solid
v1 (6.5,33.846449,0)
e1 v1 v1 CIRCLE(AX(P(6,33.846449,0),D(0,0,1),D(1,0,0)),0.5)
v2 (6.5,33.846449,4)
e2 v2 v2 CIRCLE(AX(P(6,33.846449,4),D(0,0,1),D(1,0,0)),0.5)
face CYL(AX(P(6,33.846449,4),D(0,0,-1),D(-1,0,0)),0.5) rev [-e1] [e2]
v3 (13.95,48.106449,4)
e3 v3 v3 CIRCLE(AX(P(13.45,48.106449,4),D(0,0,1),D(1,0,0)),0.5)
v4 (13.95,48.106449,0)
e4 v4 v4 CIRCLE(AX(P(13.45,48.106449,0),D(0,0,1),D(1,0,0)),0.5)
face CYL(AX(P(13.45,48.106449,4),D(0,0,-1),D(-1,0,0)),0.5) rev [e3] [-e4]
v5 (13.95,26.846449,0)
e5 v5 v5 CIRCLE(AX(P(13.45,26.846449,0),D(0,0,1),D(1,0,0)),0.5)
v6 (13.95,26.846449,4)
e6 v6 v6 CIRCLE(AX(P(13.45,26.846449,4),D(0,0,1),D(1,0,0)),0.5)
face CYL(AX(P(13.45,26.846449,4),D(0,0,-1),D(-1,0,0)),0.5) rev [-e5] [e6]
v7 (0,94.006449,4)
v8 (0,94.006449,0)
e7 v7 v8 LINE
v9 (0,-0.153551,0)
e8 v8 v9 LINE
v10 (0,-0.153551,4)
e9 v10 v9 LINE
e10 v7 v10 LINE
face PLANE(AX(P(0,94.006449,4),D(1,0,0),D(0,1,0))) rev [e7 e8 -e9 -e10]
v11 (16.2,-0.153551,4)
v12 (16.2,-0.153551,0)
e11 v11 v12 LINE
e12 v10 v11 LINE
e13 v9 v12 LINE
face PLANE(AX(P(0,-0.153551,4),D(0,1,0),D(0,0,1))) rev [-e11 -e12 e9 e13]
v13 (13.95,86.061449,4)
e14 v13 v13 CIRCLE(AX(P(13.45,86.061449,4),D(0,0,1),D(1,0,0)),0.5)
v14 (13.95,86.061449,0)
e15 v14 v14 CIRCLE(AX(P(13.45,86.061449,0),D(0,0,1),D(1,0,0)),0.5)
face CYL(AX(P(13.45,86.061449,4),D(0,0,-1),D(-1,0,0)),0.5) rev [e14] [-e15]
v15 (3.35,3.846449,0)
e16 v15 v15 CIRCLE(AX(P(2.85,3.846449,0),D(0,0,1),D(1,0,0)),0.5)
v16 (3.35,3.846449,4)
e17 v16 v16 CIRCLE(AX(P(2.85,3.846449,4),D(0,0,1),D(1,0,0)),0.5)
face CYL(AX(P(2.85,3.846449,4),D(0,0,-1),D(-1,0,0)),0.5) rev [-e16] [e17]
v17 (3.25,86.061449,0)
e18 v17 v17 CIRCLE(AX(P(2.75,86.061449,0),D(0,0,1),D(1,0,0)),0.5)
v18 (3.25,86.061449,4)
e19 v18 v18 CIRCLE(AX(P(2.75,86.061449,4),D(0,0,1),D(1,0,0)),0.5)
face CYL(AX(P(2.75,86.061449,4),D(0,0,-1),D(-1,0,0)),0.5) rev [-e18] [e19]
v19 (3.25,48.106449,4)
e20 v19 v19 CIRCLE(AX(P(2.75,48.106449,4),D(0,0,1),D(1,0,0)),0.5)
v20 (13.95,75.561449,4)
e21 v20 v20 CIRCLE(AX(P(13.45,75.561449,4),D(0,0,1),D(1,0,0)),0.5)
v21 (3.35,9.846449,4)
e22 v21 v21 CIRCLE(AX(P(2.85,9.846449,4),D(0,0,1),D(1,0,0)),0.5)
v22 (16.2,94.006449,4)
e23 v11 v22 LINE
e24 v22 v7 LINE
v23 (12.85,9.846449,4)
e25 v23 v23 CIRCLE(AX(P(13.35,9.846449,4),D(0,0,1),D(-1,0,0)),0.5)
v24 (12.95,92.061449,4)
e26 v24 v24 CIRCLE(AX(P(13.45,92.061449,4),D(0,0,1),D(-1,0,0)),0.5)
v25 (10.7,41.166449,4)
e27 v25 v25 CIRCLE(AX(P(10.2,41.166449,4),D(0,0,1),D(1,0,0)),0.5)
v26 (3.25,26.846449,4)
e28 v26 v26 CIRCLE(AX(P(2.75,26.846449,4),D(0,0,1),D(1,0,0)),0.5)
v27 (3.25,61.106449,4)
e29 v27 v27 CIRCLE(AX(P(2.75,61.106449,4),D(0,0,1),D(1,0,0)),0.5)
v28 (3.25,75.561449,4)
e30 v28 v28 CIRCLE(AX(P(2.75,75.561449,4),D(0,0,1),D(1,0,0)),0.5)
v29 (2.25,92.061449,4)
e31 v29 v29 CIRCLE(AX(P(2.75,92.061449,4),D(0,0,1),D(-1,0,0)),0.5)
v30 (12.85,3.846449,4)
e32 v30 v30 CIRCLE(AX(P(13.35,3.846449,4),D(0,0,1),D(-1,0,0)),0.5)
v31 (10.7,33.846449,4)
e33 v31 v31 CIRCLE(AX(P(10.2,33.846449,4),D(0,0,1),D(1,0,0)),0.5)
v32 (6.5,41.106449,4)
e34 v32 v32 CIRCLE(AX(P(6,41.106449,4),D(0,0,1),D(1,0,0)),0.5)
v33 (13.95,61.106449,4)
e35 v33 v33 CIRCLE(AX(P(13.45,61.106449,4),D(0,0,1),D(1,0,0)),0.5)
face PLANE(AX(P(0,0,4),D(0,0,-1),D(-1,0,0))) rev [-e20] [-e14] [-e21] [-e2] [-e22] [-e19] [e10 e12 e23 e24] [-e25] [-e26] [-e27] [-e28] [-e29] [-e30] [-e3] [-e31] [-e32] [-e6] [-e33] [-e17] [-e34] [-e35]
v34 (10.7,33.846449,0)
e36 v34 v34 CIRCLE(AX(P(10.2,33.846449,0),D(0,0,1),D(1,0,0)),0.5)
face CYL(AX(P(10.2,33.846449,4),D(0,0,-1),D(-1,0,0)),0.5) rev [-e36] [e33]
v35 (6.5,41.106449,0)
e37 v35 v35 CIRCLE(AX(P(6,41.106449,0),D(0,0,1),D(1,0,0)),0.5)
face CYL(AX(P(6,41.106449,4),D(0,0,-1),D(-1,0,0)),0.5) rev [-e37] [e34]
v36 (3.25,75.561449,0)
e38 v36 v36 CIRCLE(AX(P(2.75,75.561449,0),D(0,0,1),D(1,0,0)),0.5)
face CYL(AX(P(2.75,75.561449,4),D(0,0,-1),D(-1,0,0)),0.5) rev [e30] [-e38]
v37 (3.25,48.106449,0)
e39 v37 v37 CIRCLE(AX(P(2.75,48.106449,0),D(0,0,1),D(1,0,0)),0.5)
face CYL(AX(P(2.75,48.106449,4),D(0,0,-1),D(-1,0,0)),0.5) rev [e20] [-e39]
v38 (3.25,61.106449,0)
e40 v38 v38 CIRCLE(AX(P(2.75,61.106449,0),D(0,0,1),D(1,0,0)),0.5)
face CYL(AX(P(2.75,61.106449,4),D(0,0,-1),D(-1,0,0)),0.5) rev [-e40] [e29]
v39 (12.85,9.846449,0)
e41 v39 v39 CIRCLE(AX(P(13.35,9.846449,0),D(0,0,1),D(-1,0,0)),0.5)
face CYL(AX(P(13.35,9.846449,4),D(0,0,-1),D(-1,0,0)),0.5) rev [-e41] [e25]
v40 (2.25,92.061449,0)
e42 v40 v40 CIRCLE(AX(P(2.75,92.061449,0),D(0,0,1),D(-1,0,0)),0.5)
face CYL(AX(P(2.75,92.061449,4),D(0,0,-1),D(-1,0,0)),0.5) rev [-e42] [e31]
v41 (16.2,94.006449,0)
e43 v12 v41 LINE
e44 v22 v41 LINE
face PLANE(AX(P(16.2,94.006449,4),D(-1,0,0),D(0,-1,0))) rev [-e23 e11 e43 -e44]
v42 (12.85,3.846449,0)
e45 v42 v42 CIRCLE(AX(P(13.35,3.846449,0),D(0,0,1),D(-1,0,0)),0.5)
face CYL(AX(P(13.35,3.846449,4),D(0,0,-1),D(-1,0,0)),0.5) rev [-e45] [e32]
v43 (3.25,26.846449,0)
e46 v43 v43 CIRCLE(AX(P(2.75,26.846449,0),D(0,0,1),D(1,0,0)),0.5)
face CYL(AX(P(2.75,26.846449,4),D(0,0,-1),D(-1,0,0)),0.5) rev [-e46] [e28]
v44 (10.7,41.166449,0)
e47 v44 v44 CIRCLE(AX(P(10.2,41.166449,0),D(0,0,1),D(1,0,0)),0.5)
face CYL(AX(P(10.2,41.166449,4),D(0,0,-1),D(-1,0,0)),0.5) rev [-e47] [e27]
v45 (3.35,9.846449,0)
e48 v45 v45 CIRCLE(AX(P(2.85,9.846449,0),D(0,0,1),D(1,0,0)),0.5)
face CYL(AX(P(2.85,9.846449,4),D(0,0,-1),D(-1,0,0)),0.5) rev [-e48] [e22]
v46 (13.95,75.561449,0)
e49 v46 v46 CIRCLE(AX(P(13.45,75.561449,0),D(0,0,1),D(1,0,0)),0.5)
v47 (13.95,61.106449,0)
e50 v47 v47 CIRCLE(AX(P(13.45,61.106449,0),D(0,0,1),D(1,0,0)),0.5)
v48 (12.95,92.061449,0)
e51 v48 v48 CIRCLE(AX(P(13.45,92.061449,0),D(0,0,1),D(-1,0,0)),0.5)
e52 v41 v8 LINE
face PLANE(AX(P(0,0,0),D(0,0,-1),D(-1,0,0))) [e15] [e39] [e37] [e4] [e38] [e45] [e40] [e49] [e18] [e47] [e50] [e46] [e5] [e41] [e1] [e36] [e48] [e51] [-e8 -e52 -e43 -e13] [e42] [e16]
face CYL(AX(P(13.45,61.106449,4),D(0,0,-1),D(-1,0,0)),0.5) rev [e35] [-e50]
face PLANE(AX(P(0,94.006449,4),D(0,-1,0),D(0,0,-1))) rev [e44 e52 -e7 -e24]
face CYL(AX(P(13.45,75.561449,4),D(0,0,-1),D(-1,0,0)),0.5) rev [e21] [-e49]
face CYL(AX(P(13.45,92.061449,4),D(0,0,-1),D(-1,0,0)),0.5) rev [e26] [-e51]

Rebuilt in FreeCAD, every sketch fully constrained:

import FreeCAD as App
import Part
import Sketcher

V = App.Vector
Q = App.Units.Quantity

doc = App.newDocument("Part")
body = doc.addObject("PartDesign::Body", "Body")

# Sketch on XY plane
sketch1 = body.newObject("Sketcher::SketchObject", "Sketch")
sketch1.AttachmentSupport = (doc.getObject("XY_Plane"), [""])
sketch1.MapMode = "FlatFace"
sketch1.addGeometry(Part.LineSegment(V(0, 94.006449, 0), V(0, -0.153551, 0)), False)
sketch1.addGeometry(Part.LineSegment(V(0, -0.153551, 0), V(16.2, -0.153551, 0)), False)
sketch1.addGeometry(Part.LineSegment(V(16.2, -0.153551, 0), V(16.2, 94.006449, 0)), False)
sketch1.addGeometry(Part.LineSegment(V(16.2, 94.006449, 0), V(0, 94.006449, 0)), False)
sketch1.addGeometry(Part.Circle(V(2.85, 3.846449, 0), V(0, 0, 1), 0.5), False)
sketch1.addGeometry(Part.Circle(V(2.85, 9.846449, 0), V(0, 0, 1), 0.5), False)
sketch1.addGeometry(Part.Circle(V(2.75, 26.846449, 0), V(0, 0, 1), 0.5), False)
sketch1.addGeometry(Part.Circle(V(6, 33.846449, 0), V(0, 0, 1), 0.5), False)
sketch1.addGeometry(Part.Circle(V(6, 41.106449, 0), V(0, 0, 1), 0.5), False)
sketch1.addGeometry(Part.Circle(V(13.35, 3.846449, 0), V(0, 0, 1), 0.5), False)
sketch1.addGeometry(Part.Circle(V(13.35, 9.846449, 0), V(0, 0, 1), 0.5), False)
sketch1.addGeometry(Part.Circle(V(10.2, 33.846449, 0), V(0, 0, 1), 0.5), False)
sketch1.addGeometry(Part.Circle(V(10.2, 41.166449, 0), V(0, 0, 1), 0.5), False)
sketch1.addGeometry(Part.Circle(V(13.45, 26.846449, 0), V(0, 0, 1), 0.5), False)
sketch1.addGeometry(Part.Circle(V(2.75, 48.106449, 0), V(0, 0, 1), 0.5), False)
sketch1.addGeometry(Part.Circle(V(2.75, 61.106449, 0), V(0, 0, 1), 0.5), False)
sketch1.addGeometry(Part.Circle(V(2.75, 75.561449, 0), V(0, 0, 1), 0.5), False)
sketch1.addGeometry(Part.Circle(V(2.75, 86.061449, 0), V(0, 0, 1), 0.5), False)
sketch1.addGeometry(Part.Circle(V(2.75, 92.061449, 0), V(0, 0, 1), 0.5), False)
sketch1.addGeometry(Part.Circle(V(13.45, 48.106449, 0), V(0, 0, 1), 0.5), False)
sketch1.addGeometry(Part.Circle(V(13.45, 61.106449, 0), V(0, 0, 1), 0.5), False)
sketch1.addGeometry(Part.Circle(V(13.45, 75.561449, 0), V(0, 0, 1), 0.5), False)
sketch1.addGeometry(Part.Circle(V(13.45, 86.061449, 0), V(0, 0, 1), 0.5), False)
sketch1.addGeometry(Part.Circle(V(13.45, 92.061449, 0), V(0, 0, 1), 0.5), False)
sketch1.addConstraint(Sketcher.Constraint("Coincident", 0, 2, 1, 1))
sketch1.addConstraint(Sketcher.Constraint("Coincident", 1, 2, 2, 1))
sketch1.addConstraint(Sketcher.Constraint("Coincident", 2, 2, 3, 1))
sketch1.addConstraint(Sketcher.Constraint("Coincident", 3, 2, 0, 1))
sketch1.addConstraint(Sketcher.Constraint("Vertical", 0))
sketch1.addConstraint(Sketcher.Constraint("Horizontal", 1))
sketch1.addConstraint(Sketcher.Constraint("Vertical", 2))
sketch1.addConstraint(Sketcher.Constraint("Horizontal", 3))
sketch1.addConstraint(Sketcher.Constraint("Equal", 4, 5))
sketch1.addConstraint(Sketcher.Constraint("Equal", 5, 6))
sketch1.addConstraint(Sketcher.Constraint("Equal", 6, 7))
sketch1.addConstraint(Sketcher.Constraint("Equal", 7, 8))
sketch1.addConstraint(Sketcher.Constraint("Equal", 8, 9))
sketch1.addConstraint(Sketcher.Constraint("Equal", 9, 10))
sketch1.addConstraint(Sketcher.Constraint("Equal", 10, 11))
sketch1.addConstraint(Sketcher.Constraint("Equal", 11, 12))
sketch1.addConstraint(Sketcher.Constraint("Equal", 12, 13))
sketch1.addConstraint(Sketcher.Constraint("Equal", 13, 14))
sketch1.addConstraint(Sketcher.Constraint("Equal", 14, 15))
sketch1.addConstraint(Sketcher.Constraint("Equal", 15, 16))
sketch1.addConstraint(Sketcher.Constraint("Equal", 16, 17))
sketch1.addConstraint(Sketcher.Constraint("Equal", 17, 18))
sketch1.addConstraint(Sketcher.Constraint("Equal", 18, 19))
sketch1.addConstraint(Sketcher.Constraint("Equal", 19, 20))
sketch1.addConstraint(Sketcher.Constraint("Equal", 20, 21))
sketch1.addConstraint(Sketcher.Constraint("Equal", 21, 22))
sketch1.addConstraint(Sketcher.Constraint("Equal", 22, 23))
sketch1.addConstraint(Sketcher.Constraint("PointOnObject", 0, 2, -2))
sketch1.addConstraint(Sketcher.Constraint("Horizontal", 4, 3, 9, 3))
sketch1.addConstraint(Sketcher.Constraint("Horizontal", 5, 3, 10, 3))
sketch1.addConstraint(Sketcher.Constraint("Horizontal", 7, 3, 11, 3))
sketch1.addConstraint(Sketcher.Constraint("Horizontal", 6, 3, 13, 3))
sketch1.addConstraint(Sketcher.Constraint("Horizontal", 14, 3, 19, 3))
sketch1.addConstraint(Sketcher.Constraint("Horizontal", 15, 3, 20, 3))
sketch1.addConstraint(Sketcher.Constraint("Horizontal", 16, 3, 21, 3))
sketch1.addConstraint(Sketcher.Constraint("Horizontal", 17, 3, 22, 3))
sketch1.addConstraint(Sketcher.Constraint("Horizontal", 18, 3, 23, 3))
sketch1.addConstraint(Sketcher.Constraint("Vertical", 4, 3, 5, 3))
sketch1.addConstraint(Sketcher.Constraint("Vertical", 7, 3, 8, 3))
sketch1.addConstraint(Sketcher.Constraint("Vertical", 9, 3, 10, 3))
sketch1.addConstraint(Sketcher.Constraint("Vertical", 11, 3, 12, 3))
sketch1.addConstraint(Sketcher.Constraint("Vertical", 6, 3, 14, 3))
sketch1.addConstraint(Sketcher.Constraint("Vertical", 14, 3, 15, 3))
sketch1.addConstraint(Sketcher.Constraint("Vertical", 15, 3, 16, 3))
sketch1.addConstraint(Sketcher.Constraint("Vertical", 16, 3, 17, 3))
sketch1.addConstraint(Sketcher.Constraint("Vertical", 17, 3, 18, 3))
sketch1.addConstraint(Sketcher.Constraint("Vertical", 13, 3, 19, 3))
sketch1.addConstraint(Sketcher.Constraint("Vertical", 19, 3, 20, 3))
sketch1.addConstraint(Sketcher.Constraint("Vertical", 20, 3, 21, 3))
sketch1.addConstraint(Sketcher.Constraint("Vertical", 21, 3, 22, 3))
sketch1.addConstraint(Sketcher.Constraint("Vertical", 22, 3, 23, 3))
sketch1.addConstraint(Sketcher.Constraint("Diameter", 4, Q("1 mm")))
sketch1.addConstraint(Sketcher.Constraint("DistanceX", 1, 1, 1, 2, Q("16.2 mm")))
sketch1.addConstraint(Sketcher.Constraint("DistanceX", -1, 1, 7, 3, Q("6 mm")))
sketch1.addConstraint(Sketcher.Constraint("DistanceY", 4, 3, 5, 3, Q("6 mm")))
sketch1.addConstraint(Sketcher.Constraint("DistanceY", 5, 3, 6, 3, Q("17 mm")))
sketch1.addConstraint(Sketcher.Constraint("DistanceY", 6, 3, 7, 3, Q("7 mm")))
sketch1.addConstraint(Sketcher.Constraint("DistanceY", 8, 3, 14, 3, Q("7 mm")))
sketch1.addConstraint(Sketcher.Constraint("DistanceY", 14, 3, 15, 3, Q("13 mm")))
sketch1.addConstraint(Sketcher.Constraint("DistanceY", 17, 3, 18, 3, Q("6 mm")))
sketch1.addConstraint(Sketcher.Constraint("DistanceY", 0, 2, 4, 3, Q("4 mm")))
sketch1.addConstraint(Sketcher.Constraint("DistanceY", 0, 2, 0, 1, Q("94.16 mm")))
sketch1.addConstraint(Sketcher.Constraint("DistanceX", -1, 1, 11, 3, Q("10.2 mm")))
sketch1.addConstraint(Sketcher.Constraint("DistanceX", 6, 3, 5, 3, Q("0.1 mm")))
sketch1.addConstraint(Sketcher.Constraint("DistanceX", 4, 3, 9, 3, Q("10.5 mm")))
sketch1.addConstraint(Sketcher.Constraint("DistanceX", 6, 3, 13, 3, Q("10.7 mm")))
sketch1.addConstraint(Sketcher.Constraint("DistanceY", 16, 3, 17, 3, Q("10.5 mm")))
sketch1.addConstraint(Sketcher.Constraint("DistanceX", -1, 1, 4, 3, Q("2.85 mm")))
sketch1.addConstraint(Sketcher.Constraint("DistanceY", 7, 3, 8, 3, Q("7.26 mm")))
sketch1.addConstraint(Sketcher.Constraint("DistanceY", 8, 3, 12, 3, Q("0.06 mm")))
sketch1.addConstraint(Sketcher.Constraint("DistanceY", 15, 3, 16, 3, Q("14.455 mm")))
sketch1.addConstraint(Sketcher.Constraint("DistanceY", -1, 1, 4, 3, Q("3.846449 mm")))
pad1 = body.newObject("PartDesign::Pad", "Pad")
pad1.Profile = sketch1
pad1.Length = 4

doc.recompute()
